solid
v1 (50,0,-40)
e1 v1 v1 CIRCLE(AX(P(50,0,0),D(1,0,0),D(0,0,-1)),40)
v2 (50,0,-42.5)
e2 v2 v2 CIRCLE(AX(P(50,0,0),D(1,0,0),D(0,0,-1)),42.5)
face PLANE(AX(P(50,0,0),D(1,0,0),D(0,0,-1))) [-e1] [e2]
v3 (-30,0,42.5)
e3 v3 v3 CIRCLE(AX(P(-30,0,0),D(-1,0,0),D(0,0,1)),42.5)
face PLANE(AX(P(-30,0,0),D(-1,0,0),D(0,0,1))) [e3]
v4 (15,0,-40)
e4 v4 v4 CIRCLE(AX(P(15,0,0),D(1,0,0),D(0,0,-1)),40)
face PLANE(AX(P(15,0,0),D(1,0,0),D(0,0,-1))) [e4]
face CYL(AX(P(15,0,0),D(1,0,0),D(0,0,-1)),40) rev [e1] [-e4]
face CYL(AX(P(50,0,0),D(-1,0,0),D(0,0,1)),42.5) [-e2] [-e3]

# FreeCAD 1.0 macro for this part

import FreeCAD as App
import Part
import Sketcher

V = App.Vector
Q = App.Units.Quantity

doc = App.newDocument("Part")
body = doc.addObject("PartDesign::Body", "Body")

sketch1 = body.newObject("Sketcher::SketchObject", "Sketch")
sketch1.AttachmentSupport = (doc.getObject("YZ_Plane"), [""])
sketch1.MapMode = "FlatFace"
sketch1.addGeometry(Part.Circle(V(0, 0, 0), V(0, 0, 1), 42), False)
sketch1.addConstraint([
    Sketcher.Constraint("Coincident", 0, 3, -1, 1),
    Sketcher.Constraint("Diameter", 0, Q("85 mm")),
])
pad1 = body.newObject("PartDesign::Pad", "Pad")
pad1.Profile = sketch1
pad1.Length = 100
pad1.Midplane = True

sketch2 = body.newObject("Sketcher::SketchObject", "Sketch001")
sketch2.AttachmentSupport = (doc.getObject("YZ_Plane"), [""])
sketch2.MapMode = "FlatFace"
sketch2.AttachmentOffset = App.Placement(V(0, 0, 50), App.Rotation())
sketch2.addGeometry(Part.Circle(V(0, 0, 0), V(0, 0, 1), 40), False)
sketch2.addConstraint([
    Sketcher.Constraint("Coincident", 0, 3, -1, 1),
    Sketcher.Constraint("Diameter", 0, Q("80 mm")),
])
pocket1 = body.newObject("PartDesign::Pocket", "Pocket")
pocket1.Profile = sketch2
pocket1.Length = 35

sketch3 = body.newObject("Sketcher::SketchObject", "Sketch002")
sketch3.AttachmentSupport = (doc.getObject("YZ_Plane"), [""])
sketch3.MapMode = "FlatFace"
sketch3.AttachmentOffset = App.Placement(V(0, 0, -50), App.Rotation())
sketch3.addGeometry(Part.Circle(V(0, 0, 0), V(0, 0, 1), 42), False)
sketch3.addConstraint([
    Sketcher.Constraint("Coincident", 0, 3, -1, 1),
    Sketcher.Constraint("Diameter", 0, Q("85 mm")),
])
pocket2 = body.newObject("PartDesign::Pocket", "Pocket001")
pocket2.Profile = sketch3
pocket2.Length = 20
pocket2.Reversed = True

doc.recompute()
